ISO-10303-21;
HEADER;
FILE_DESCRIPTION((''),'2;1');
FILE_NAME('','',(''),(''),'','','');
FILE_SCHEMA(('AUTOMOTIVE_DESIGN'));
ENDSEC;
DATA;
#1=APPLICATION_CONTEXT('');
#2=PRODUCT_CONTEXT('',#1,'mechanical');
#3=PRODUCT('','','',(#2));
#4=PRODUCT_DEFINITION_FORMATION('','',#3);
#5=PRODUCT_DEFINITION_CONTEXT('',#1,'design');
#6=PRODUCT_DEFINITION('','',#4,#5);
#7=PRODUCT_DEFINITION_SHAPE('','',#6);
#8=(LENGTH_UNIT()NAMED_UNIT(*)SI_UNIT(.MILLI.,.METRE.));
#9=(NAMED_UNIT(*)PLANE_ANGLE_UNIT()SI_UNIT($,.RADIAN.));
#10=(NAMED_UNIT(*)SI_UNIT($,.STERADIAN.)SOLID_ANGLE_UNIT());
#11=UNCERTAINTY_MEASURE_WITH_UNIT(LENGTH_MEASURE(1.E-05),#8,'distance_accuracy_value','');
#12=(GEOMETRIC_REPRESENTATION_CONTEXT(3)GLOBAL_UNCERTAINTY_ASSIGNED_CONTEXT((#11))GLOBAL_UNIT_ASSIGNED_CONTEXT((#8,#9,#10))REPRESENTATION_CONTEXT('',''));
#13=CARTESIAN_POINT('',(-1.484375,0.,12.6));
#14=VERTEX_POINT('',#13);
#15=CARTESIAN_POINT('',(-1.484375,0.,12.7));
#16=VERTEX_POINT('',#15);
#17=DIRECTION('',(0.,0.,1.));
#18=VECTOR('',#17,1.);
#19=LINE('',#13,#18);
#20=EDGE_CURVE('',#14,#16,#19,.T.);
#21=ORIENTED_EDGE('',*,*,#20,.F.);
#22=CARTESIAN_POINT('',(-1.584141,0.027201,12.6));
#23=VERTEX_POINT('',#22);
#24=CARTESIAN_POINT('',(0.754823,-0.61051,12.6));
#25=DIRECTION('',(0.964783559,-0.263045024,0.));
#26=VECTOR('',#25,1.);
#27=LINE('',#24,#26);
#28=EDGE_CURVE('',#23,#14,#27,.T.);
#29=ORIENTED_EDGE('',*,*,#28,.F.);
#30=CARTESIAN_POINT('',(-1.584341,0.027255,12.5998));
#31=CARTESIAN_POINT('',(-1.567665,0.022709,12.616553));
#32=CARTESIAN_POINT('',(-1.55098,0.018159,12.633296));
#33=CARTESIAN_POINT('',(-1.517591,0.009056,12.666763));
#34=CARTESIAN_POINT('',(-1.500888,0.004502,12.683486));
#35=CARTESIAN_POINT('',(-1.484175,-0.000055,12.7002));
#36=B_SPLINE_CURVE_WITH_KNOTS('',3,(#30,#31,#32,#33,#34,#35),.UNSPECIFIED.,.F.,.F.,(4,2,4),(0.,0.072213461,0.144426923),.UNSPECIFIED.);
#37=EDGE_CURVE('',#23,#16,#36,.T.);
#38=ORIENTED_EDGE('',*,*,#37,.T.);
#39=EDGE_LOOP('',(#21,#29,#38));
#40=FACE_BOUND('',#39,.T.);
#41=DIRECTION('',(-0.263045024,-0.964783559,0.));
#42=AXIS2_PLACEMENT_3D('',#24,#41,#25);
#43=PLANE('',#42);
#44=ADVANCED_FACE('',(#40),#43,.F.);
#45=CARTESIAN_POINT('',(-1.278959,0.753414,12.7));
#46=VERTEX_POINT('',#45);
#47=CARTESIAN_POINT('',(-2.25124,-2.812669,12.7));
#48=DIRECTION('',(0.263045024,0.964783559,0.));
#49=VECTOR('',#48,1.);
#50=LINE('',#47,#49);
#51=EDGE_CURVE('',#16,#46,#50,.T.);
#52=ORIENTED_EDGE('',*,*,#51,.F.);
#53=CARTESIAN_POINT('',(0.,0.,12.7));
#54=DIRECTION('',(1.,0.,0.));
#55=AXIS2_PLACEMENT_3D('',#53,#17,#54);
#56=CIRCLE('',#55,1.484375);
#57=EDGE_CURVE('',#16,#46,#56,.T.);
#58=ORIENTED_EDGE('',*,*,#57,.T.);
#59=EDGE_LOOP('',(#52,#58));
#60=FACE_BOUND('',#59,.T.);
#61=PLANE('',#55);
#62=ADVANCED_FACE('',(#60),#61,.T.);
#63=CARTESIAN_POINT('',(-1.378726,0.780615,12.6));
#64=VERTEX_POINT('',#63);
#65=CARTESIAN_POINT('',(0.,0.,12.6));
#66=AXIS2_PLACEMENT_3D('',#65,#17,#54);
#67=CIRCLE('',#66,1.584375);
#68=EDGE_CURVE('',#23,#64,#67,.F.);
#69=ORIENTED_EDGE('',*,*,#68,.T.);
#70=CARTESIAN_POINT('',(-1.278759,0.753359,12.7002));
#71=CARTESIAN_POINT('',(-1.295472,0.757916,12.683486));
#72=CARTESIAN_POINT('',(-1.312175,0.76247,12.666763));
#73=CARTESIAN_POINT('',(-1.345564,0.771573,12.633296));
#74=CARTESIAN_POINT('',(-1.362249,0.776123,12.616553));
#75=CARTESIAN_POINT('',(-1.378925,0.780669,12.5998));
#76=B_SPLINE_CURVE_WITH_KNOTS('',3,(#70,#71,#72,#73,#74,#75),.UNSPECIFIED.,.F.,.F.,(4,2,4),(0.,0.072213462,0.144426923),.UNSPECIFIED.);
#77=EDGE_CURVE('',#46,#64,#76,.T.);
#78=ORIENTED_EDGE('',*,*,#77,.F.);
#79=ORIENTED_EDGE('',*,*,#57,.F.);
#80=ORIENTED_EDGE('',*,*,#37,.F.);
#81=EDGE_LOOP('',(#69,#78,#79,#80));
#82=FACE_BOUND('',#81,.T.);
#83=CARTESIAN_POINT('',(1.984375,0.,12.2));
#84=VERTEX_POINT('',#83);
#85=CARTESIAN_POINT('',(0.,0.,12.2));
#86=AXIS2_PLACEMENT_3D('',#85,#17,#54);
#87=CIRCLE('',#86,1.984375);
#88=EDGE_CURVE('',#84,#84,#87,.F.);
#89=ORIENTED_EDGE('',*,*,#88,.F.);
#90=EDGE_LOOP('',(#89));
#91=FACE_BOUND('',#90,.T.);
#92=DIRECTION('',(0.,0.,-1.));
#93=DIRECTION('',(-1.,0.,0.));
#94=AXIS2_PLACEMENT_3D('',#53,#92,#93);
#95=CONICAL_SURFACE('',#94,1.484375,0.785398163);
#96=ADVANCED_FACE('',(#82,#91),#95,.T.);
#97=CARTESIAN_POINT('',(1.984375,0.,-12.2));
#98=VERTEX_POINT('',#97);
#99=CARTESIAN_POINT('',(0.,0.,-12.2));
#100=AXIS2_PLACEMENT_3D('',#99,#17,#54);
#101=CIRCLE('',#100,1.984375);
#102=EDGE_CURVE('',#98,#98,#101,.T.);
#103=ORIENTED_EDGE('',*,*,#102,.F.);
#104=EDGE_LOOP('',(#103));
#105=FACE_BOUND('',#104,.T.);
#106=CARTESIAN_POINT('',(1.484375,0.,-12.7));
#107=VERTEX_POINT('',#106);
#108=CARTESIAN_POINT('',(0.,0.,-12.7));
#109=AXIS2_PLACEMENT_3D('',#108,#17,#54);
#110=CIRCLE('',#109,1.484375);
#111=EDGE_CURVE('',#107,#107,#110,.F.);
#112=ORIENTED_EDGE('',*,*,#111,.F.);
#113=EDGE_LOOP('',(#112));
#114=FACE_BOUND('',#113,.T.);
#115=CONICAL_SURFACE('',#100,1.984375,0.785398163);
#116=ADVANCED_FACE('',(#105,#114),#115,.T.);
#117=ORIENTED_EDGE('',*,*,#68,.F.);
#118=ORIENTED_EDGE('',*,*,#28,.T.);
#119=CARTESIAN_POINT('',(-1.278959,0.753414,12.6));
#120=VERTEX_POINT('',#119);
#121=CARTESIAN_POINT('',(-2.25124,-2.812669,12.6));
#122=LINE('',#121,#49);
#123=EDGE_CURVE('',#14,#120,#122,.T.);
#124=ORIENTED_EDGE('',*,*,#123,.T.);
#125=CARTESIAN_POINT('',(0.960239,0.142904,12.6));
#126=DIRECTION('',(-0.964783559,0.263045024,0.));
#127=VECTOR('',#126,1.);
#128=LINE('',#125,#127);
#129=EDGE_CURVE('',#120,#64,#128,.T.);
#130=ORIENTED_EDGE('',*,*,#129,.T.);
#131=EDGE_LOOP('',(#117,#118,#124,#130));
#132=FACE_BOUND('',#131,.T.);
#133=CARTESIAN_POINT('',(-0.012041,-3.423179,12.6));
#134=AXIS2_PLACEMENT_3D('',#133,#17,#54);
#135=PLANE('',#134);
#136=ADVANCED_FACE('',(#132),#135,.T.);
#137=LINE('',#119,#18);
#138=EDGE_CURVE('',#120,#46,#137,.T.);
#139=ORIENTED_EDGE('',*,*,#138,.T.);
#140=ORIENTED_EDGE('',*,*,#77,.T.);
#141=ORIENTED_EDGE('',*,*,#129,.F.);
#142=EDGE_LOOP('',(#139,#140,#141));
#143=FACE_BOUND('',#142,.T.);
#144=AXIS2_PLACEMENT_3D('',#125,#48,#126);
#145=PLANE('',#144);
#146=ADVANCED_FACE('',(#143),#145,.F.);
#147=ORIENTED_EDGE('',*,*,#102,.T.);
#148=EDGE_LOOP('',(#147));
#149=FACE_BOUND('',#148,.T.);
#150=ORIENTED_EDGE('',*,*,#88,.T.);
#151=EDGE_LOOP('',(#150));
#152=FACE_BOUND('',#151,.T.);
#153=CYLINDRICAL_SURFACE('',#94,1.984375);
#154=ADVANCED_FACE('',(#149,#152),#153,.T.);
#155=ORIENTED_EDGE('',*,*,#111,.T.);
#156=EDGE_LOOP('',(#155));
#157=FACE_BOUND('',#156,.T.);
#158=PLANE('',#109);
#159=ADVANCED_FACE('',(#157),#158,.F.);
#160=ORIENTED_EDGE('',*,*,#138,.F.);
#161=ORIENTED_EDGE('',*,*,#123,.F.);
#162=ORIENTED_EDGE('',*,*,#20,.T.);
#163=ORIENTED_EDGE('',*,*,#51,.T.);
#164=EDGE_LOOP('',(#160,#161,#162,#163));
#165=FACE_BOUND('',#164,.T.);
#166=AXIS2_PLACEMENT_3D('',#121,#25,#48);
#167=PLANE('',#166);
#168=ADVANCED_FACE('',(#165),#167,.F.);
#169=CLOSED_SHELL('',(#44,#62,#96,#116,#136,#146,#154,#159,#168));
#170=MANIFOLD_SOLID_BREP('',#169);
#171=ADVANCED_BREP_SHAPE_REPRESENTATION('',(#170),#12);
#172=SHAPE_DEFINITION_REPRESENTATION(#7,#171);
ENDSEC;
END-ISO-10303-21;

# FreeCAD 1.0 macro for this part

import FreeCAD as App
import Part
import Sketcher
Q = App.Units.Quantity


def edges_at(feature, points):
    """Names of the edges that pass closest to the given points."""
    edges = feature.Shape.Edges
    near = lambda p: min(range(len(edges)), key=lambda i: edges[i].distToShape(Part.Vertex(*p))[0])
    return sorted({f"Edge{near(p) + 1}" for p in points})

doc = App.newDocument("Part")
params = doc.addObject("Spreadsheet::Sheet", "Params")
for row, (alias, value) in enumerate([
    ("pad1_length", "25.4 mm"),
    ("chamfer_size", "0.5 mm"),
    ("pocket1_length", "0.1 mm"),
], start=1):
    params.set(f"A{row}", alias)
    params.set(f"B{row}", "=" + value)
    params.setAlias(f"B{row}", alias)

body = doc.addObject("PartDesign::Body", "Body")

sketch1 = body.newObject("Sketcher::SketchObject", "Sketch")
sketch1.AttachmentSupport = (doc.getObject("XY_Plane"), [""])
sketch1.MapMode = "FlatFace"
sketch1.addGeometry(Part.Circle(App.Vector(0, 0, 0), App.Vector(0, 0, 1), 2), False)
sketch1.addConstraint(Sketcher.Constraint("Coincident", 0, 3, -1, 1))
sketch1.addConstraint(Sketcher.Constraint("Diameter", 0, Q("3.96875 mm")))
pad1 = body.newObject("PartDesign::Pad", "Pad")
pad1.Profile = sketch1
pad1.setExpression("Length", "Params.pad1_length")
pad1.Midplane = True
doc.recompute()

chamfer = body.newObject("PartDesign::Chamfer", "Chamfer")
chamfer.Base = (pad1, edges_at(pad1, [(-1.984, 0, -12.7), (-1.984, 0, 12.7)]))
chamfer.setExpression("Size", "Params.chamfer_size")

sketch2 = body.newObject("Sketcher::SketchObject", "Sketch001")
sketch2.AttachmentSupport = (doc.getObject("XY_Plane"), [""])
sketch2.MapMode = "FlatFace"
sketch2.AttachmentOffset = App.Placement(App.Vector(0, 0, 12.7), App.Rotation())
sketch2.addGeometry(Part.LineSegment(App.Vector(-1.48, 0, 0), App.Vector(-1.28, 0.75, 0)), False)
sketch2.addGeometry(Part.LineSegment(App.Vector(-1.28, 0.75, 0), App.Vector(-1.57, 0.83, 0)), False)
sketch2.addGeometry(Part.LineSegment(App.Vector(-1.57, 0.83, 0), App.Vector(-1.78, 0.08, 0)), False)
sketch2.addGeometry(Part.LineSegment(App.Vector(-1.78, 0.08, 0), App.Vector(-1.48, 0, 0)), False)
sketch2.addConstraint(Sketcher.Constraint("Coincident", 0, 2, 1, 1))
sketch2.addConstraint(Sketcher.Constraint("Coincident", 1, 2, 2, 1))
sketch2.addConstraint(Sketcher.Constraint("Coincident", 2, 2, 3, 1))
sketch2.addConstraint(Sketcher.Constraint("Coincident", 3, 2, 0, 1))
sketch2.addConstraint(Sketcher.Constraint("PointOnObject", 3, 2, -1))
sketch2.addConstraint(Sketcher.Constraint("Perpendicular", 0, 1))
sketch2.addConstraint(Sketcher.Constraint("Perpendicular", 1, 2))
sketch2.addConstraint(Sketcher.Constraint("Perpendicular", 2, 3))
sketch2.addConstraint(Sketcher.Constraint("DistanceX", 0, 2, -1, 1, Q("1.278959 mm")))
sketch2.addConstraint(Sketcher.Constraint("DistanceX", 2, 2, -1, 1, Q("1.77538 mm")))
sketch2.addConstraint(Sketcher.Constraint("DistanceY", -1, 1, 2, 2, Q("0.079341 mm")))
sketch2.addConstraint(Sketcher.Constraint("DistanceX", 1, 2, 3, 2, Q("0.085589 mm")))
pocket1 = body.newObject("PartDesign::Pocket", "Pocket")
pocket1.Profile = sketch2
pocket1.setExpression("Length", "Params.pocket1_length")

doc.recompute()
